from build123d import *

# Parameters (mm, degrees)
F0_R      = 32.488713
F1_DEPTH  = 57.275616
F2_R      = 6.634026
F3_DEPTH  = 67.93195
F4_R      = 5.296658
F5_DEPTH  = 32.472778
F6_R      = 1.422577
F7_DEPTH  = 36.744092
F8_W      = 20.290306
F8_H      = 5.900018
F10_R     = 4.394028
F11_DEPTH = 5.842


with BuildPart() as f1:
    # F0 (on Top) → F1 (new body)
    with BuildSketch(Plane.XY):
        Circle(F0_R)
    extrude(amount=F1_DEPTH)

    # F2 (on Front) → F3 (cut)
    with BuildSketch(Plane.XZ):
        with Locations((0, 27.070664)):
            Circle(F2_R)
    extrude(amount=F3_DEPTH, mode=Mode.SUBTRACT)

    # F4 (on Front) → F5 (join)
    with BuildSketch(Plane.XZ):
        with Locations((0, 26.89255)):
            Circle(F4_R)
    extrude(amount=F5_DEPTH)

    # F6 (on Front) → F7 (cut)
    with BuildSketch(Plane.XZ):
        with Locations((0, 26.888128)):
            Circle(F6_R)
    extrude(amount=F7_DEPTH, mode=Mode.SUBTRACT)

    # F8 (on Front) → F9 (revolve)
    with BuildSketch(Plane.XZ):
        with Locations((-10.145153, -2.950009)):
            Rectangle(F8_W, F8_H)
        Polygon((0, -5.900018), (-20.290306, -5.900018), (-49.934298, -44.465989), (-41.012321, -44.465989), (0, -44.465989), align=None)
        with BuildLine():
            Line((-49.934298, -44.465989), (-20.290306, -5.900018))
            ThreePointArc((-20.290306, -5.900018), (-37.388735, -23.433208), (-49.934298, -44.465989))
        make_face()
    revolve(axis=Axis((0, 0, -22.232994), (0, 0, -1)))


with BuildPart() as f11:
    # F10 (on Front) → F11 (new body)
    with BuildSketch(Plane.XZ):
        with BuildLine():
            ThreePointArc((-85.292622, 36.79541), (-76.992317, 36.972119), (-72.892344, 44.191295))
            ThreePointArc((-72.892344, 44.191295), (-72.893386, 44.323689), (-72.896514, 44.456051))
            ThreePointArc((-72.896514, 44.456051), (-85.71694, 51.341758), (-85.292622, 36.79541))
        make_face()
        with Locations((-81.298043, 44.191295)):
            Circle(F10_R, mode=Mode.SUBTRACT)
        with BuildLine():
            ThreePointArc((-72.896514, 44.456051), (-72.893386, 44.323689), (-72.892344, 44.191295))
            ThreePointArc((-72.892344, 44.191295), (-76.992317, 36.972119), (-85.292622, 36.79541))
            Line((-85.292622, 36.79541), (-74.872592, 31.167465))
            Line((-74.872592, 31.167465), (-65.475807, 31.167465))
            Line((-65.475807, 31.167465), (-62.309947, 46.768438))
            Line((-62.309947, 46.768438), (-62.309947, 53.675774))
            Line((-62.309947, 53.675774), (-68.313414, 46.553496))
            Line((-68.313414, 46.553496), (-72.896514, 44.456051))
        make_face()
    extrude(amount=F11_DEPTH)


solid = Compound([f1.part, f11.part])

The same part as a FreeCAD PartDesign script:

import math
import FreeCAD as App
import Part
import Sketcher
from FreeCAD import Vector
Q = App.Units.Quantity

doc = App.newDocument("Part")
params = doc.addObject("Spreadsheet::Sheet", "Params")
for row, (alias, value) in enumerate([
    ("pad1_length", "57.275616 mm"),
    ("pocket1_length", "67.93195 mm"),
    ("pad2_length", "32.472778 mm"),
    ("pocket2_length", "36.744092 mm"),
    ("revolution_angle", "360 deg"),
    ("pad3_length", "0.23 in"),
], start=1):
    params.set(f"A{row}", alias)
    params.set(f"B{row}", "=" + value)
    params.setAlias(f"B{row}", alias)

body = doc.addObject("PartDesign::Body", "Body")

sketch1 = doc.addObject("Sketcher::SketchObject", "Sketch")
body.addObject(sketch1)
sketch1.AttachmentSupport = (doc.XY_Plane, [""])
sketch1.MapMode = "FlatFace"
sketch1.addGeometry(Part.Circle(Vector(0, 0, 0), Vector(0, 0, 1), 32.488713), False)
sketch1.addConstraint(Sketcher.Constraint("Coincident", 0, 3, -1, 1))
sketch1.addConstraint(Sketcher.Constraint("Diameter", 0, 64.977426))
pad1 = doc.addObject("PartDesign::Pad", "Pad")
body.addObject(pad1)
pad1.Profile = sketch1
pad1.setExpression("Length", "Params.pad1_length")

sketch2 = doc.addObject("Sketcher::SketchObject", "Sketch001")
body.addObject(sketch2)
sketch2.AttachmentSupport = (doc.XZ_Plane, [""])
sketch2.MapMode = "FlatFace"
sketch2.addGeometry(Part.Circle(Vector(0, 27.070664, 0), Vector(0, 0, 1), 6.634026), False)
sketch2.addConstraint(Sketcher.Constraint("PointOnObject", 0, 3, -2))
sketch2.addConstraint(Sketcher.Constraint("Diameter", 0, 13.268052))
sketch2.addConstraint(Sketcher.Constraint("DistanceY", -1, 1, 0, 3, 27.070664))
pocket1 = doc.addObject("PartDesign::Pocket", "Pocket")
body.addObject(pocket1)
pocket1.Profile = sketch2
pocket1.setExpression("Length", "Params.pocket1_length")
pocket1.Reversed = True

sketch3 = doc.addObject("Sketcher::SketchObject", "Sketch002")
body.addObject(sketch3)
sketch3.AttachmentSupport = (doc.XZ_Plane, [""])
sketch3.MapMode = "FlatFace"
sketch3.addGeometry(Part.Circle(Vector(0, 26.89255, 0), Vector(0, 0, 1), 5.296658), False)
sketch3.addConstraint(Sketcher.Constraint("PointOnObject", 0, 3, -2))
sketch3.addConstraint(Sketcher.Constraint("Diameter", 0, 10.593316))
sketch3.addConstraint(Sketcher.Constraint("DistanceY", -1, 1, 0, 3, 26.89255))
pad2 = doc.addObject("PartDesign::Pad", "Pad001")
body.addObject(pad2)
pad2.Profile = sketch3
pad2.setExpression("Length", "Params.pad2_length")

sketch4 = doc.addObject("Sketcher::SketchObject", "Sketch003")
body.addObject(sketch4)
sketch4.AttachmentSupport = (doc.XZ_Plane, [""])
sketch4.MapMode = "FlatFace"
sketch4.addGeometry(Part.Circle(Vector(0, 26.888128, 0), Vector(0, 0, 1), 1.422577), False)
sketch4.addConstraint(Sketcher.Constraint("PointOnObject", 0, 3, -2))
sketch4.addConstraint(Sketcher.Constraint("Diameter", 0, 2.845154))
sketch4.addConstraint(Sketcher.Constraint("DistanceY", -1, 1, 0, 3, 26.888128))
pocket2 = doc.addObject("PartDesign::Pocket", "Pocket001")
body.addObject(pocket2)
pocket2.Profile = sketch4
pocket2.setExpression("Length", "Params.pocket2_length")
pocket2.Reversed = True

sketch5 = doc.addObject("Sketcher::SketchObject", "Sketch004")
body.addObject(sketch5)
sketch5.AttachmentSupport = (doc.XZ_Plane, [""])
sketch5.MapMode = "FlatFace"
sketch5.addGeometry(Part.LineSegment(Vector(-20.290306, 0, 0), Vector(-20.290306, -5.900018, 0)), False)
sketch5.addGeometry(Part.ArcOfCircle(Part.Circle(Vector(45.419693, -87.084461, 0), Vector(0, 0, 1), 104.444807), math.radians(128.986414), math.radians(155.917742)), False)
sketch5.addGeometry(Part.LineSegment(Vector(-49.934298, -44.465989, 0), Vector(0, -44.465989, 0)), False)
sketch5.addGeometry(Part.LineSegment(Vector(0, -44.465989, 0), Vector(0, 0, 0)), False)
sketch5.addGeometry(Part.LineSegment(Vector(0, 0, 0), Vector(-20.290306, 0, 0)), False)
sketch5.addConstraint(Sketcher.Constraint("Coincident", 0, 2, 1, 1))
sketch5.addConstraint(Sketcher.Constraint("Coincident", 1, 2, 2, 1))
sketch5.addConstraint(Sketcher.Constraint("Coincident", 2, 2, 3, 1))
sketch5.addConstraint(Sketcher.Constraint("Coincident", 3, 2, 4, 1))
sketch5.addConstraint(Sketcher.Constraint("Coincident", 4, 2, 0, 1))
sketch5.addConstraint(Sketcher.Constraint("Vertical", 0))
sketch5.addConstraint(Sketcher.Constraint("Horizontal", 2))
sketch5.addConstraint(Sketcher.Constraint("Vertical", 3))
sketch5.addConstraint(Sketcher.Constraint("Horizontal", 4))
sketch5.addConstraint(Sketcher.Constraint("Coincident", 3, 2, -1, 1))
sketch5.addConstraint(Sketcher.Constraint("Radius", 1, 104.444807))
sketch5.addConstraint(Sketcher.Constraint("DistanceY", 0, 2, 0, 1, 5.900018))
sketch5.addConstraint(Sketcher.Constraint("DistanceY", 3, 1, 3, 2, 44.465989))
sketch5.addConstraint(Sketcher.Constraint("DistanceX", 0, 2, 1, 3, 65.709999))
sketch5.addConstraint(Sketcher.Constraint("DistanceX", 2, 1, 2, 2, 49.934298))
revolution = doc.addObject("PartDesign::Revolution", "Revolution")
body.addObject(revolution)
revolution.Profile = sketch5
revolution.ReferenceAxis = (sketch5, ["V_Axis"])
revolution.setExpression("Angle", "Params.revolution_angle")
body2 = doc.addObject("PartDesign::Body", "Body001")

sketch6 = doc.addObject("Sketcher::SketchObject", "Sketch005")
body2.addObject(sketch6)
sketch6.AttachmentSupport = (doc.getObject("XZ_Plane001"), [""])
sketch6.MapMode = "FlatFace"
sketch6.addGeometry(Part.ArcOfCircle(Part.Circle(Vector(-81.298043, 44.191295, 0), Vector(0, 0, 1), 8.405699), math.radians(1.804956), math.radians(241.626146)), False)
sketch6.addGeometry(Part.LineSegment(Vector(-85.292622, 36.79541, 0), Vector(-74.872592, 31.167465, 0)), False)
sketch6.addGeometry(Part.LineSegment(Vector(-74.872592, 31.167465, 0), Vector(-65.475807, 31.167465, 0)), False)
sketch6.addGeometry(Part.LineSegment(Vector(-65.475807, 31.167465, 0), Vector(-62.309947, 46.768438, 0)), False)
sketch6.addGeometry(Part.LineSegment(Vector(-62.309947, 46.768438, 0), Vector(-62.309947, 53.675774, 0)), False)
sketch6.addGeometry(Part.LineSegment(Vector(-62.309947, 53.675774, 0), Vector(-68.313414, 46.553496, 0)), False)
sketch6.addGeometry(Part.LineSegment(Vector(-68.313414, 46.553496, 0), Vector(-72.896514, 44.456051, 0)), False)
sketch6.addGeometry(Part.Circle(Vector(-81.298043, 44.191295, 0), Vector(0, 0, 1), 4.394028), False)
sketch6.addConstraint(Sketcher.Constraint("Tangent", 0, 2, 1, 1))
sketch6.addConstraint(Sketcher.Constraint("Coincident", 1, 2, 2, 1))
sketch6.addConstraint(Sketcher.Constraint("Coincident", 2, 2, 3, 1))
sketch6.addConstraint(Sketcher.Constraint("Coincident", 3, 2, 4, 1))
sketch6.addConstraint(Sketcher.Constraint("Coincident", 4, 2, 5, 1))
sketch6.addConstraint(Sketcher.Constraint("Coincident", 5, 2, 6, 1))
sketch6.addConstraint(Sketcher.Constraint("Coincident", 6, 2, 0, 1))
sketch6.addConstraint(Sketcher.Constraint("Horizontal", 2))
sketch6.addConstraint(Sketcher.Constraint("Vertical", 4))
sketch6.addConstraint(Sketcher.Constraint("Coincident", 7, 3, 0, 3))
sketch6.addConstraint(Sketcher.Constraint("Radius", 0, 8.405699))
sketch6.addConstraint(Sketcher.Constraint("DistanceY", 0, 3, 5, 2, Q("0.093 in")))
sketch6.addConstraint(Sketcher.Constraint("Diameter", 7, 8.788056))
sketch6.addConstraint(Sketcher.Constraint("DistanceX", 6, 2, 5, 2, 4.5831))
sketch6.addConstraint(Sketcher.Constraint("Distance", 3, 15.918952))
sketch6.addConstraint(Sketcher.Constraint("Distance", 5, 9.314959))
sketch6.addConstraint(Sketcher.Constraint("DistanceX", 2, 1, 2, 2, 9.396785))
sketch6.addConstraint(Sketcher.Constraint("DistanceY", 4, 1, 4, 2, 6.907336))
sketch6.addConstraint(Sketcher.Constraint("DistanceY", -1, 1, 0, 2, 36.79541))
sketch6.addConstraint(Sketcher.Constraint("DistanceX", 1, 2, -1, 1, 74.872592))
sketch6.addConstraint(Sketcher.Constraint("DistanceY", -1, 1, 3, 2, 46.768438))
sketch6.addConstraint(Sketcher.Constraint("DistanceY", -1, 1, 6, 2, 44.456051))
sketch6.addConstraint(Sketcher.Constraint("DistanceX", 0, 2, 7, 3, 3.994579))
pad3 = doc.addObject("PartDesign::Pad", "Pad002")
body2.addObject(pad3)
pad3.Profile = sketch6
pad3.setExpression("Length", "Params.pad3_length")

doc.recompute()
